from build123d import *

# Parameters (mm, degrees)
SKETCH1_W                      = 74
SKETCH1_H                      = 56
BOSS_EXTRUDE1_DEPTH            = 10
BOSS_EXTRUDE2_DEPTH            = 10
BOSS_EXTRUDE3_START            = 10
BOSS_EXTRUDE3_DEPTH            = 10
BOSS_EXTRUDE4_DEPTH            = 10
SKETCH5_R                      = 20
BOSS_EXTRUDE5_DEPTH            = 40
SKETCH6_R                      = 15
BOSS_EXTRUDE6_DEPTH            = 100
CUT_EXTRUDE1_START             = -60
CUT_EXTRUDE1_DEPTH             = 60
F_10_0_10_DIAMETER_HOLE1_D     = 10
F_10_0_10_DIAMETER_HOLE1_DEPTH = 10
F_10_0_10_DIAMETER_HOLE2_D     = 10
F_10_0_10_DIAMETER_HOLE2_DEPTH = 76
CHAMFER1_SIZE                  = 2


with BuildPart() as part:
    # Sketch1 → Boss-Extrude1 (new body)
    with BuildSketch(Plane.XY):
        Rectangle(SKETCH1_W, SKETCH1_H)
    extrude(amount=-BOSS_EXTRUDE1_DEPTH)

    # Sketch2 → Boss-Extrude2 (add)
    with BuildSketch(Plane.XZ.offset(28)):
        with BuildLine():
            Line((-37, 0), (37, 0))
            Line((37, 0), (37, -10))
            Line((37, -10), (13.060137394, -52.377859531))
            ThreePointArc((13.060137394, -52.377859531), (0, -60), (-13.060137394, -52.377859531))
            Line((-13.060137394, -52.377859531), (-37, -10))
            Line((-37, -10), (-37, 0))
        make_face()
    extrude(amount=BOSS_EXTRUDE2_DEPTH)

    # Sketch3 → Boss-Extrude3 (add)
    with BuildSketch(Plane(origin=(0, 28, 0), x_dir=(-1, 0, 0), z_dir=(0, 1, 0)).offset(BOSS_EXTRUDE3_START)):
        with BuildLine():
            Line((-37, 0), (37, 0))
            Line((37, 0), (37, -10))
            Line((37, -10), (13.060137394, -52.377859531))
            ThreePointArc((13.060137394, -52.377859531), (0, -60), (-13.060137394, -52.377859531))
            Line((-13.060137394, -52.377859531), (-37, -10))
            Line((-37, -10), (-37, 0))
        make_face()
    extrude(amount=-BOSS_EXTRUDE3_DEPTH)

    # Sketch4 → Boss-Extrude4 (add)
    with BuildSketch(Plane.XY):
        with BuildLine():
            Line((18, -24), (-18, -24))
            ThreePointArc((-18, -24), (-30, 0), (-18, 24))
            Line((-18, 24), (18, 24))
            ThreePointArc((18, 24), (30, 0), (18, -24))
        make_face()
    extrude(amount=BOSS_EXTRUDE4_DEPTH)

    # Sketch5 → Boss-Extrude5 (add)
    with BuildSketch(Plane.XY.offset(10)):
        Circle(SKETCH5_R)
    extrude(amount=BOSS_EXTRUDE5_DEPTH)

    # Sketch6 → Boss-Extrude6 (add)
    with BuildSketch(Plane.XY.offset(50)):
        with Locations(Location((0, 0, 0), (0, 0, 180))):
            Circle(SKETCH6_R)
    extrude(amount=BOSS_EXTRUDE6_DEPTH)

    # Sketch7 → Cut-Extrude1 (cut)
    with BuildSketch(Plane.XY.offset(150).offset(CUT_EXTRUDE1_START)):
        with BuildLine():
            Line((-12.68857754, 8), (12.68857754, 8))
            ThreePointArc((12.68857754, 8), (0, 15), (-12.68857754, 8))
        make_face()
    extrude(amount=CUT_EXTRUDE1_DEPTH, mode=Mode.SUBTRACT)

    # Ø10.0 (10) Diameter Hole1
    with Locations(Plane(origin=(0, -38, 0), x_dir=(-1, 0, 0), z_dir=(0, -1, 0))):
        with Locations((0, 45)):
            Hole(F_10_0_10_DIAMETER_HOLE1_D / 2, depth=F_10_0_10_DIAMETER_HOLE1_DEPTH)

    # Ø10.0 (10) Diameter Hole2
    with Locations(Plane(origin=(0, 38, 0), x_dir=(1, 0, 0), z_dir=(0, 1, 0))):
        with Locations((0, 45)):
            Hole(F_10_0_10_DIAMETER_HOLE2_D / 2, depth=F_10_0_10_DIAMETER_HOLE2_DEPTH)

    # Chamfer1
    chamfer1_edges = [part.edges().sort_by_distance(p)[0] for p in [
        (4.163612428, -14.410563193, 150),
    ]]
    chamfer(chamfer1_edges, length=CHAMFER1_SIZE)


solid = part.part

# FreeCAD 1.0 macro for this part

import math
import FreeCAD as App
import Part
import Sketcher


def edges_at(feature, points):
    """Names of the edges that pass closest to the given points."""
    edges = feature.Shape.Edges
    near = lambda p: min(range(len(edges)), key=lambda i: edges[i].distToShape(Part.Vertex(*p))[0])
    return sorted({f"Edge{near(p) + 1}" for p in points})

doc = App.newDocument("Part")
body = doc.addObject("PartDesign::Body", "Body")

# Sketch on XY plane
sketch1 = body.newObject("Sketcher::SketchObject", "Sketch")
sketch1.AttachmentSupport = (doc.getObject("XY_Plane"), [""])
sketch1.MapMode = "FlatFace"
sketch1.addGeometry([
    Part.LineSegment(App.Vector(-37, 28, 0), App.Vector(-37, -28, 0)),
    Part.LineSegment(App.Vector(-37, -28, 0), App.Vector(37, -28, 0)),
    Part.LineSegment(App.Vector(37, -28, 0), App.Vector(37, 28, 0)),
    Part.LineSegment(App.Vector(37, 28, 0), App.Vector(-37, 28, 0)),
], False)
sketch1.addConstraint([
    Sketcher.Constraint("Coincident", 0, 2, 1, 1),
    Sketcher.Constraint("Coincident", 1, 2, 2, 1),
    Sketcher.Constraint("Coincident", 2, 2, 3, 1),
    Sketcher.Constraint("Coincident", 3, 2, 0, 1),
    Sketcher.Constraint("Vertical", 0),
    Sketcher.Constraint("Horizontal", 1),
    Sketcher.Constraint("Vertical", 2),
    Sketcher.Constraint("Horizontal", 3),
    Sketcher.Constraint("Symmetric", 0, 2, 2, 2, -1, 1),
    Sketcher.Constraint("DistanceX", 1, 1, 1, 2, 74.0),
    Sketcher.Constraint("DistanceY", 0, 2, 0, 1, 56.0),
])
pad1 = body.newObject("PartDesign::Pad", "Pad")
pad1.Profile = sketch1
pad1.Length = 10
pad1.Reversed = True

# Sketch on XZ plane
sketch2 = body.newObject("Sketcher::SketchObject", "Sketch001")
sketch2.AttachmentSupport = (doc.getObject("XZ_Plane"), [""])
sketch2.MapMode = "FlatFace"
sketch2.AttachmentOffset = App.Placement(App.Vector(0, 0, 28), App.Rotation())
sketch2.addGeometry([
    Part.LineSegment(App.Vector(37, 0, 0), App.Vector(-37, 0, 0)),  # 0
    Part.LineSegment(App.Vector(-37, 0, 0), App.Vector(-37, -10, 0)),  # 1
    Part.LineSegment(App.Vector(-37, -10, 0), App.Vector(-13, -52, 0)),  # 2
    Part.ArcOfCircle(Part.Circle(App.Vector(0, -45, 0), App.Vector(0, 0, 1), 15), math.radians(-151), math.radians(-29)),  # 3
    Part.LineSegment(App.Vector(13, -52, 0), App.Vector(37, -10, 0)),  # 4
    Part.LineSegment(App.Vector(37, -10, 0), App.Vector(37, 0, 0)),  # 5
], False)
sketch2.addConstraint([
    Sketcher.Constraint("Coincident", 0, 2, 1, 1),
    Sketcher.Constraint("Coincident", 1, 2, 2, 1),
    Sketcher.Constraint("Tangent", 2, 2, 3, 1),
    Sketcher.Constraint("Tangent", 3, 2, 4, 1),
    Sketcher.Constraint("Coincident", 4, 2, 5, 1),
    Sketcher.Constraint("Coincident", 5, 2, 0, 1),
    Sketcher.Constraint("Horizontal", 0),
    Sketcher.Constraint("Vertical", 1),
    Sketcher.Constraint("Vertical", 5),
    Sketcher.Constraint("Symmetric", 0, 2, 5, 2, -1, 1),
    Sketcher.Constraint("Symmetric", 2, 2, 3, 2, -2),
    Sketcher.Constraint("Radius", 3, 15.0),
    Sketcher.Constraint("DistanceX", 0, 2, 0, 1, 74.0),
    Sketcher.Constraint("DistanceY", 1, 2, 1, 1, 10.0),
    Sketcher.Constraint("DistanceY", 3, 3, -1, 1, 45.0),
])
pad2 = body.newObject("PartDesign::Pad", "Pad001")
pad2.Profile = sketch2
pad2.Length = 10

# Sketch on XZ plane
sketch3 = body.newObject("Sketcher::SketchObject", "Sketch002")
sketch3.AttachmentSupport = (doc.getObject("XZ_Plane"), [""])
sketch3.MapMode = "FlatFace"
sketch3.AttachmentOffset = App.Placement(App.Vector(0, 0, -38), App.Rotation())
sketch3.addGeometry([
    Part.LineSegment(App.Vector(-37, 0, 0), App.Vector(37, 0, 0)),  # 0
    Part.LineSegment(App.Vector(37, 0, 0), App.Vector(37, -10, 0)),  # 1
    Part.LineSegment(App.Vector(37, -10, 0), App.Vector(13, -52, 0)),  # 2
    Part.ArcOfCircle(Part.Circle(App.Vector(0, -45, 0), App.Vector(0, 0, 1), 15), math.radians(-151), math.radians(-29)),  # 3
    Part.LineSegment(App.Vector(-13, -52, 0), App.Vector(-37, -10, 0)),  # 4
    Part.LineSegment(App.Vector(-37, -10, 0), App.Vector(-37, 0, 0)),  # 5
], False)
sketch3.addConstraint([
    Sketcher.Constraint("Coincident", 0, 2, 1, 1),
    Sketcher.Constraint("Coincident", 1, 2, 2, 1),
    Sketcher.Constraint("Tangent", 2, 2, 3, 2),
    Sketcher.Constraint("Tangent", 3, 1, 4, 1),
    Sketcher.Constraint("Coincident", 4, 2, 5, 1),
    Sketcher.Constraint("Coincident", 5, 2, 0, 1),
    Sketcher.Constraint("Horizontal", 0),
    Sketcher.Constraint("Vertical", 1),
    Sketcher.Constraint("Vertical", 5),
    Sketcher.Constraint("Symmetric", 0, 2, 5, 2, -1, 1),
    Sketcher.Constraint("Symmetric", 2, 2, 3, 1, -2),
    Sketcher.Constraint("Radius", 3, 15.0),
    Sketcher.Constraint("DistanceX", 0, 1, 0, 2, 74.0),
    Sketcher.Constraint("DistanceY", 1, 2, 1, 1, 10.0),
    Sketcher.Constraint("DistanceY", 3, 3, -1, 1, 45.0),
])
pad3 = body.newObject("PartDesign::Pad", "Pad002")
pad3.Profile = sketch3
pad3.Length = 10

# Sketch on XY plane
sketch4 = body.newObject("Sketcher::SketchObject", "Sketch003")
sketch4.AttachmentSupport = (doc.getObject("XY_Plane"), [""])
sketch4.MapMode = "FlatFace"
sketch4.addGeometry([
    Part.LineSegment(App.Vector(-18, -24, 0), App.Vector(18, -24, 0)),
    Part.ArcOfCircle(Part.Circle(App.Vector(0, 0, 0), App.Vector(0, 0, 1), 30), math.radians(-53), math.radians(53)),
    Part.LineSegment(App.Vector(18, 24, 0), App.Vector(-18, 24, 0)),
    Part.ArcOfCircle(Part.Circle(App.Vector(0, 0, 0), App.Vector(0, 0, 1), 30), math.radians(127), math.radians(233)),
], False)
sketch4.addConstraint([
    Sketcher.Constraint("Coincident", 0, 2, 1, 1),
    Sketcher.Constraint("Coincident", 1, 2, 2, 1),
    Sketcher.Constraint("Coincident", 2, 2, 3, 1),
    Sketcher.Constraint("Coincident", 3, 2, 0, 1),
    Sketcher.Constraint("Horizontal", 0),
    Sketcher.Constraint("Horizontal", 2),
    Sketcher.Constraint("Coincident", 1, 3, -1, 1),
    Sketcher.Constraint("Coincident", 3, 3, -1, 1),
    Sketcher.Constraint("Equal", 1, 3),
    Sketcher.Constraint("Vertical", 0, 2, 1, 2),
    Sketcher.Constraint("Radius", 1, 30.0),
    Sketcher.Constraint("DistanceX", 0, 1, 0, 2, 36.0),
])
pad4 = body.newObject("PartDesign::Pad", "Pad003")
pad4.Profile = sketch4
pad4.Length = 10

# Sketch on XY plane
sketch5 = body.newObject("Sketcher::SketchObject", "Sketch004")
sketch5.AttachmentSupport = (doc.getObject("XY_Plane"), [""])
sketch5.MapMode = "FlatFace"
sketch5.AttachmentOffset = App.Placement(App.Vector(0, 0, 10), App.Rotation())
sketch5.addGeometry(Part.Circle(App.Vector(0, 0, 0), App.Vector(0, 0, 1), 20), False)
sketch5.addConstraint([
    Sketcher.Constraint("Coincident", 0, 3, -1, 1),
    Sketcher.Constraint("Diameter", 0, 40.0),
])
pad5 = body.newObject("PartDesign::Pad", "Pad004")
pad5.Profile = sketch5
pad5.Length = 40

# Sketch on XY plane
sketch6 = body.newObject("Sketcher::SketchObject", "Sketch005")
sketch6.AttachmentSupport = (doc.getObject("XY_Plane"), [""])
sketch6.MapMode = "FlatFace"
sketch6.AttachmentOffset = App.Placement(App.Vector(0, 0, 50), App.Rotation())
sketch6.addGeometry(Part.Circle(App.Vector(0, 0, 0), App.Vector(0, 0, 1), 15), False)
sketch6.addConstraint([
    Sketcher.Constraint("Coincident", 0, 3, -1, 1),
    Sketcher.Constraint("Diameter", 0, 30.0),
])
pad6 = body.newObject("PartDesign::Pad", "Pad005")
pad6.Profile = sketch6
pad6.Length = 100

# Sketch on XY plane
sketch7 = body.newObject("Sketcher::SketchObject", "Sketch006")
sketch7.AttachmentSupport = (doc.getObject("XY_Plane"), [""])
sketch7.MapMode = "FlatFace"
sketch7.AttachmentOffset = App.Placement(App.Vector(0, 0, 90), App.Rotation())
sketch7.addGeometry([
    Part.LineSegment(App.Vector(-13, 8, 0), App.Vector(13, 8, 0)),
    Part.ArcOfCircle(Part.Circle(App.Vector(0, 0, 0), App.Vector(0, 0, 1), 15), math.radians(32), math.radians(148)),
], False)
sketch7.addConstraint([
    Sketcher.Constraint("Coincident", 0, 1, 1, 2),
    Sketcher.Constraint("Coincident", 1, 1, 0, 2),
    Sketcher.Constraint("Horizontal", 0),
    Sketcher.Constraint("Coincident", 1, 3, -1, 1),
    Sketcher.Constraint("Radius", 1, 15.0),
    Sketcher.Constraint("DistanceY", -1, 1, 0, 1, 8.0),
])
pocket1 = body.newObject("PartDesign::Pocket", "Pocket")
pocket1.Profile = sketch7
pocket1.Length = 60
pocket1.Reversed = True

# Sketch on XZ plane
sketch8 = body.newObject("Sketcher::SketchObject", "Sketch007")
sketch8.AttachmentSupport = (doc.getObject("XZ_Plane"), [""])
sketch8.MapMode = "FlatFace"
sketch8.AttachmentOffset = App.Placement(App.Vector(0, 0, 38), App.Rotation())
sketch8.addGeometry(Part.Circle(App.Vector(0, -45, 0), App.Vector(0, 0, 1), 5), False)
sketch8.addConstraint([
    Sketcher.Constraint("PointOnObject", 0, 3, -2),
    Sketcher.Constraint("Diameter", 0, 10.0),
    Sketcher.Constraint("DistanceY", 0, 3, -1, 1, 45.0),
])
doc.recompute()
hole = body.newObject("PartDesign::Hole", "Hole")
hole.Profile = sketch8
hole.ThreadType = "None"
hole.Diameter = 10
hole.DepthType = "Dimension"
hole.Depth = 10
hole.DrillPoint = "Flat"

# Sketch on XZ plane
sketch9 = body.newObject("Sketcher::SketchObject", "Sketch008")
sketch9.AttachmentSupport = (doc.getObject("XZ_Plane"), [""])
sketch9.MapMode = "FlatFace"
sketch9.AttachmentOffset = App.Placement(App.Vector(0, 0, -38), App.Rotation())
sketch9.addGeometry(Part.Circle(App.Vector(0, -45, 0), App.Vector(0, 0, 1), 5), False)
sketch9.addConstraint([
    Sketcher.Constraint("PointOnObject", 0, 3, -2),
    Sketcher.Constraint("Diameter", 0, 10.0),
    Sketcher.Constraint("DistanceY", 0, 3, -1, 1, 45.0),
])
doc.recompute()
hole2 = body.newObject("PartDesign::Hole", "Hole001")
hole2.Profile = sketch9
hole2.ThreadType = "None"
hole2.Diameter = 10
hole2.DepthType = "Dimension"
hole2.Depth = 76
hole2.DrillPoint = "Flat"
hole2.Reversed = True
doc.recompute()

chamfer = body.newObject("PartDesign::Chamfer", "Chamfer")
chamfer.Base = (hole2, edges_at(hole2, [(4.164, -14.411, 150)]))
chamfer.Size = 2

doc.recompute()
